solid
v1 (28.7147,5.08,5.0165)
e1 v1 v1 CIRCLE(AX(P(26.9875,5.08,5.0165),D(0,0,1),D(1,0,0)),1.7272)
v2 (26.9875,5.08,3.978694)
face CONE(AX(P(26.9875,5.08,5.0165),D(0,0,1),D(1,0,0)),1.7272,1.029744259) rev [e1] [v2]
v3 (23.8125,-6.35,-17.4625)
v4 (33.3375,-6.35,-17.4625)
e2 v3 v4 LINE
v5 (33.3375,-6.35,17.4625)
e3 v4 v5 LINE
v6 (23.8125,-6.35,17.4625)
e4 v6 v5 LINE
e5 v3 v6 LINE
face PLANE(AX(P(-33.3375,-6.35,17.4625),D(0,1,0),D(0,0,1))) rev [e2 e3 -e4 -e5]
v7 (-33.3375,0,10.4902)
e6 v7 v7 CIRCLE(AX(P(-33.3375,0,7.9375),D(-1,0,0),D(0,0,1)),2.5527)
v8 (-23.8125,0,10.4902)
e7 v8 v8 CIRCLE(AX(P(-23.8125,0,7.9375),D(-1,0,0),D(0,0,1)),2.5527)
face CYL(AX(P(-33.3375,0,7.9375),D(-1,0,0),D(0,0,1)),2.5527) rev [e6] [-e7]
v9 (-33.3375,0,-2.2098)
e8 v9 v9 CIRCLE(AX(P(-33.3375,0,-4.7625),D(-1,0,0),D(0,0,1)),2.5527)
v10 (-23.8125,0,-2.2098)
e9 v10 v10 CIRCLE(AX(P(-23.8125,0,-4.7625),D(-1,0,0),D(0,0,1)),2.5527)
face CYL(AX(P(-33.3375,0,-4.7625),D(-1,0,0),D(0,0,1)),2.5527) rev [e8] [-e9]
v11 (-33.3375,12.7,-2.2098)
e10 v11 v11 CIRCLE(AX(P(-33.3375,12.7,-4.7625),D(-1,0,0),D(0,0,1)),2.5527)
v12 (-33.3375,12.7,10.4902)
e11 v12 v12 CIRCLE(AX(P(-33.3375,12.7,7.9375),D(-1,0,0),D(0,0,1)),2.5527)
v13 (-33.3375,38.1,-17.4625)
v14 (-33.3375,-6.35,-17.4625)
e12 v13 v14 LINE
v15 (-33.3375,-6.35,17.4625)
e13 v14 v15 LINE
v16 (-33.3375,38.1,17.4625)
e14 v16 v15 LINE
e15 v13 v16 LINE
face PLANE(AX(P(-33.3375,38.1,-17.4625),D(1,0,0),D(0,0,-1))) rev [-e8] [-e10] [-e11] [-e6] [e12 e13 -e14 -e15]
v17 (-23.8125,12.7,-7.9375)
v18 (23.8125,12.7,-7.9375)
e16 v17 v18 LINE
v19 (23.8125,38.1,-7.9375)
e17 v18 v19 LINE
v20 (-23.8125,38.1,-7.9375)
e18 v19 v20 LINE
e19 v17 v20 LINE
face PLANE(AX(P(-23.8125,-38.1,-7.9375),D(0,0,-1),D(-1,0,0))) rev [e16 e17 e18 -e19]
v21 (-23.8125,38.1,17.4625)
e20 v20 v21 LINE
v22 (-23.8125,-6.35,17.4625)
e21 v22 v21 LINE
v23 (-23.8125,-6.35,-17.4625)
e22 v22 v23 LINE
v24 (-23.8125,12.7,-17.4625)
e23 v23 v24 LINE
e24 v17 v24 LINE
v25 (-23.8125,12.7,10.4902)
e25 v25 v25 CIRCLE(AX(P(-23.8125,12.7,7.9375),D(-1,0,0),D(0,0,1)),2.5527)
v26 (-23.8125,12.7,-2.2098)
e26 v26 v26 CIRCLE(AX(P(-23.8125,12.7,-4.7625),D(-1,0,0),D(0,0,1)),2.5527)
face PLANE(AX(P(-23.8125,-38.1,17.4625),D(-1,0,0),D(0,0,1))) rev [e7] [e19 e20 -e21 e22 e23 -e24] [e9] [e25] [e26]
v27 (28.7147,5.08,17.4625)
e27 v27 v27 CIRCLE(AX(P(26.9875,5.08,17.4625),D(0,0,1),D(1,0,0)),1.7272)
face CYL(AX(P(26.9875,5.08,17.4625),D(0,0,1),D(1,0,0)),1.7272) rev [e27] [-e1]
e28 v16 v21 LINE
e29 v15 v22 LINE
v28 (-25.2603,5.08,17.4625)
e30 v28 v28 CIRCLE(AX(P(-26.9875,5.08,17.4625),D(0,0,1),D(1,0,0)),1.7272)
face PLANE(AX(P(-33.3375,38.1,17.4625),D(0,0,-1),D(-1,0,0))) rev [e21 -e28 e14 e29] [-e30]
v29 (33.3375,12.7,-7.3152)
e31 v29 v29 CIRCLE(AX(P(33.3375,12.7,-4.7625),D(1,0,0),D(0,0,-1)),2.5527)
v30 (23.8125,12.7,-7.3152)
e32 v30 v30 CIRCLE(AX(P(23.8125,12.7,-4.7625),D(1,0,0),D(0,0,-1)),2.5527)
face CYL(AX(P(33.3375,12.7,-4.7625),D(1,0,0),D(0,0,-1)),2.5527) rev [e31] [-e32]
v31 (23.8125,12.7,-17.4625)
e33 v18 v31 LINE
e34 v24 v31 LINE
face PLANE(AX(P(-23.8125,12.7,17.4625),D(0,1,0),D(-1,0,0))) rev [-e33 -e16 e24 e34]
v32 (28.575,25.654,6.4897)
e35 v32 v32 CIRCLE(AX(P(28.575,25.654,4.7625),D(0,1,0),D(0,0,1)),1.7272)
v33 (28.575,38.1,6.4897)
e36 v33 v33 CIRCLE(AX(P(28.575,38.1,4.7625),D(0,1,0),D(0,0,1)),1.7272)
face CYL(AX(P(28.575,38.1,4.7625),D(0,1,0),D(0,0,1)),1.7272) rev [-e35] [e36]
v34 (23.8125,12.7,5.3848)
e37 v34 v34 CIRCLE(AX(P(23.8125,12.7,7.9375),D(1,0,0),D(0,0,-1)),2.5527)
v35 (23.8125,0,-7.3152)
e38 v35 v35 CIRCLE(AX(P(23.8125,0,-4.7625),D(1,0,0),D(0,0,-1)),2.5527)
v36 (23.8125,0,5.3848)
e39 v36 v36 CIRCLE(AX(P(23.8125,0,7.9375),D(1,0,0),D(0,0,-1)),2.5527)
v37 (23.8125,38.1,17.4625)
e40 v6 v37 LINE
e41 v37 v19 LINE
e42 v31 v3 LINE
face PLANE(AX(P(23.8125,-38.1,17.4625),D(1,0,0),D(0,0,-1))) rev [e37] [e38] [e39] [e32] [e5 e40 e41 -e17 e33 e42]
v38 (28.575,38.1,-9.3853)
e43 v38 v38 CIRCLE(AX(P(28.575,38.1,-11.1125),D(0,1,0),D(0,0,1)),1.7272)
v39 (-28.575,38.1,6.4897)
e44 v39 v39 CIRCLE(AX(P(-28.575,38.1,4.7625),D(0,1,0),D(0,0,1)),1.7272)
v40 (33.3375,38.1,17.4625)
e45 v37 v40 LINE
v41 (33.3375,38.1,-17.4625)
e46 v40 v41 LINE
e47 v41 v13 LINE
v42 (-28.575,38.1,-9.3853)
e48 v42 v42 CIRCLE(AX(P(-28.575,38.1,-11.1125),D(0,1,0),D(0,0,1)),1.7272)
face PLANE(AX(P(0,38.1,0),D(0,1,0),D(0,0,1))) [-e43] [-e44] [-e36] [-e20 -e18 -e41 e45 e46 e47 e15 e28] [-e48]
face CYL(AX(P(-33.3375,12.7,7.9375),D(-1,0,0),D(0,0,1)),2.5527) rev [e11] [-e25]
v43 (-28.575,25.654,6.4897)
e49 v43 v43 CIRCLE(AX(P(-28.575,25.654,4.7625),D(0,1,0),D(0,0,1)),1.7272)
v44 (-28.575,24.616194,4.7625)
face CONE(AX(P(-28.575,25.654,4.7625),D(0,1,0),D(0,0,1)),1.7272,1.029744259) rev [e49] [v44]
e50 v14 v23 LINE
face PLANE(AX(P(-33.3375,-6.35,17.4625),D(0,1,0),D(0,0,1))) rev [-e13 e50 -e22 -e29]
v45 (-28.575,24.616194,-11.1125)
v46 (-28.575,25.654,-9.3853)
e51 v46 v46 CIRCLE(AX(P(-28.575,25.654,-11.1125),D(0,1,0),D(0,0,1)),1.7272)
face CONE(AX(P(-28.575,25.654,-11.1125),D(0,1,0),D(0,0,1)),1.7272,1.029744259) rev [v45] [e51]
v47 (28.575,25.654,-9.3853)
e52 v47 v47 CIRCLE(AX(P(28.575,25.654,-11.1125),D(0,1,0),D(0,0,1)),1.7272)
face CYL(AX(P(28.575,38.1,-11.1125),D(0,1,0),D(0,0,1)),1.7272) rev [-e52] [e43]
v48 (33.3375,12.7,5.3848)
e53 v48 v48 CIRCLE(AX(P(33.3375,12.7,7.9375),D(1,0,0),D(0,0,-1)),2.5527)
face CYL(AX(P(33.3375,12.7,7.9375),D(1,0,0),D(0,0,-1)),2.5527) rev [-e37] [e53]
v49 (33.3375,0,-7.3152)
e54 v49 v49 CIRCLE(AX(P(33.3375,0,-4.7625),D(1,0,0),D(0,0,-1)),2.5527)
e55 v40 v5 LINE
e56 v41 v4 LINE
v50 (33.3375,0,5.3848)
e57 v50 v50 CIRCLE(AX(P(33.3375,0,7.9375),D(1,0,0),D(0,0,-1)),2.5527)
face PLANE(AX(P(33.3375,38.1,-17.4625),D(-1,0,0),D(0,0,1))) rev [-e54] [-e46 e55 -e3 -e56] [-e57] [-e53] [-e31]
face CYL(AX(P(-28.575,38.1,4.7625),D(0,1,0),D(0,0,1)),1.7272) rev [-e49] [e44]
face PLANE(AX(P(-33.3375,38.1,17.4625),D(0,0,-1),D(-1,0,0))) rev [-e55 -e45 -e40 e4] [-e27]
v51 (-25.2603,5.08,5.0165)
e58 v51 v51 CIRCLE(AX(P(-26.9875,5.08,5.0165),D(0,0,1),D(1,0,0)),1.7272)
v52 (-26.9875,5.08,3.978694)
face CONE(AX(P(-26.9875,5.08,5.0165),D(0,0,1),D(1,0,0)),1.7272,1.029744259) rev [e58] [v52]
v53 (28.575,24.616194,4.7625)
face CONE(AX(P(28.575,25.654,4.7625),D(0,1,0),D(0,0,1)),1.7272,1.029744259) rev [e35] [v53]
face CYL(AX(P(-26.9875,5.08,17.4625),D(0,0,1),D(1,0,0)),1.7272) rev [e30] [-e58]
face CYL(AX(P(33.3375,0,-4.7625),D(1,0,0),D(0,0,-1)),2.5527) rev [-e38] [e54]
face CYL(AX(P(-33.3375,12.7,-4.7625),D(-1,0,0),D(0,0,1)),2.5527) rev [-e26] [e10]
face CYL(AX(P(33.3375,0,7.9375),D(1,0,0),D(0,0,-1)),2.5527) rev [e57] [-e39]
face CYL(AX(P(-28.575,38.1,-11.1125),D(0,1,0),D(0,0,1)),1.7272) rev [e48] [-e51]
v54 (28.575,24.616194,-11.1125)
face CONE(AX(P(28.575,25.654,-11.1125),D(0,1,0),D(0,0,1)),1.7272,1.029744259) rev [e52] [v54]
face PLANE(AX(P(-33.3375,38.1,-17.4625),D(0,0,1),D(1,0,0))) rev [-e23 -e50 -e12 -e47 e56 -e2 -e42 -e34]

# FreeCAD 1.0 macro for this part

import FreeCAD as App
import Part
import Sketcher
Q = App.Units.Quantity

doc = App.newDocument("Part")
body = doc.addObject("PartDesign::Body", "Body")

sketch1 = doc.addObject("Sketcher::SketchObject", "Sketch")
body.addObject(sketch1)
sketch1.AttachmentSupport = (doc.XZ_Plane, [""])
sketch1.MapMode = "FlatFace"
sketch1.addGeometry([
    Part.LineSegment(App.Vector(-33, -17, 0), App.Vector(-33, 17, 0)),
    Part.LineSegment(App.Vector(-33, 17, 0), App.Vector(33, 17, 0)),
    Part.LineSegment(App.Vector(33, 17, 0), App.Vector(33, -17, 0)),
    Part.LineSegment(App.Vector(33, -17, 0), App.Vector(-33, -17, 0)),
], False)
sketch1.addConstraint([
    Sketcher.Constraint("Coincident", 0, 2, 1, 1),
    Sketcher.Constraint("Coincident", 1, 2, 2, 1),
    Sketcher.Constraint("Coincident", 2, 2, 3, 1),
    Sketcher.Constraint("Coincident", 3, 2, 0, 1),
    Sketcher.Constraint("Vertical", 0),
    Sketcher.Constraint("Horizontal", 1),
    Sketcher.Constraint("Vertical", 2),
    Sketcher.Constraint("Horizontal", 3),
    Sketcher.Constraint("Symmetric", 0, 2, 2, 2, -1, 1),
    Sketcher.Constraint("DistanceX", 1, 1, 1, 2, Q("2.625 in")),
    Sketcher.Constraint("DistanceY", 0, 1, 0, 2, Q("1.375 in")),
])
pad1 = doc.addObject("PartDesign::Pad", "Pad")
body.addObject(pad1)
pad1.Profile = sketch1
pad1.Length = Q("3 in")
pad1.Midplane = True

sketch2 = doc.addObject("Sketcher::SketchObject", "Sketch001")
body.addObject(sketch2)
sketch2.AttachmentSupport = (doc.XZ_Plane, [""])
sketch2.MapMode = "FlatFace"
sketch2.AttachmentOffset = App.Placement(App.Vector(0, 0, -1.5 * 25.4), App.Rotation())
sketch2.addGeometry([
    Part.LineSegment(App.Vector(-24, -8, 0), App.Vector(-24, 17, 0)),
    Part.LineSegment(App.Vector(-24, 17, 0), App.Vector(24, 17, 0)),
    Part.LineSegment(App.Vector(24, 17, 0), App.Vector(24, -8, 0)),
    Part.LineSegment(App.Vector(24, -8, 0), App.Vector(-24, -8, 0)),
], False)
sketch2.addConstraint([
    Sketcher.Constraint("Coincident", 0, 2, 1, 1),
    Sketcher.Constraint("Coincident", 1, 2, 2, 1),
    Sketcher.Constraint("Coincident", 2, 2, 3, 1),
    Sketcher.Constraint("Coincident", 3, 2, 0, 1),
    Sketcher.Constraint("Vertical", 0),
    Sketcher.Constraint("Horizontal", 1),
    Sketcher.Constraint("Vertical", 2),
    Sketcher.Constraint("Horizontal", 3),
    Sketcher.Constraint("DistanceY", 0, 1, 0, 2, Q("1 in")),
    Sketcher.Constraint("DistanceX", 1, 1, 1, 2, Q("1.875 in")),
    Sketcher.Constraint("DistanceX", 0, 2, -1, 1, Q("0.9375 in")),
    Sketcher.Constraint("DistanceY", -1, 1, 0, 2, Q("0.6875 in")),
])
pocket1 = doc.addObject("PartDesign::Pocket", "Pocket")
body.addObject(pocket1)
pocket1.Profile = sketch2
pocket1.Type = "ThroughAll"
pocket1.Reversed = True

sketch3 = doc.addObject("Sketcher::SketchObject", "Sketch002")
body.addObject(sketch3)
sketch3.AttachmentSupport = (doc.YZ_Plane, [""])
sketch3.MapMode = "FlatFace"
sketch3.AttachmentOffset = App.Placement(App.Vector(0, 0, 1.3125 * 25.4), App.Rotation())
sketch3.addGeometry([
    Part.LineSegment(App.Vector(-6, 17, 0), App.Vector(-38, 17, 0)),
    Part.LineSegment(App.Vector(-38, 17, 0), App.Vector(-38, -17, 0)),
    Part.LineSegment(App.Vector(-38, -17, 0), App.Vector(-6, -17, 0)),
    Part.LineSegment(App.Vector(-6, -17, 0), App.Vector(-6, 17, 0)),
], False)
sketch3.addConstraint([
    Sketcher.Constraint("Coincident", 0, 2, 1, 1),
    Sketcher.Constraint("Coincident", 1, 2, 2, 1),
    Sketcher.Constraint("Coincident", 2, 2, 3, 1),
    Sketcher.Constraint("Coincident", 3, 2, 0, 1),
    Sketcher.Constraint("Horizontal", 0),
    Sketcher.Constraint("Vertical", 1),
    Sketcher.Constraint("Horizontal", 2),
    Sketcher.Constraint("Vertical", 3),
    Sketcher.Constraint("DistanceX", 0, 2, 0, 1, Q("1.25 in")),
    Sketcher.Constraint("DistanceX", 0, 2, -1, 1, Q("1.5 in")),
    Sketcher.Constraint("DistanceY", 1, 2, 1, 1, Q("1.375 in")),
    Sketcher.Constraint("DistanceY", -1, 1, 0, 2, Q("0.6875 in")),
])
pocket2 = doc.addObject("PartDesign::Pocket", "Pocket001")
body.addObject(pocket2)
pocket2.Profile = sketch3
pocket2.Type = "ThroughAll"

sketch4 = doc.addObject("Sketcher::SketchObject", "Sketch003")
body.addObject(sketch4)
sketch4.AttachmentSupport = (doc.XY_Plane, [""])
sketch4.MapMode = "FlatFace"
sketch4.AttachmentOffset = App.Placement(App.Vector(0, 0, -0.6875 * 25.4), App.Rotation())
sketch4.addGeometry([
    Part.LineSegment(App.Vector(24, 13, 0), App.Vector(24, -25, 0)),
    Part.LineSegment(App.Vector(24, -25, 0), App.Vector(-24, -25, 0)),
    Part.LineSegment(App.Vector(-24, -25, 0), App.Vector(-24, 13, 0)),
    Part.LineSegment(App.Vector(-24, 13, 0), App.Vector(24, 13, 0)),
], False)
sketch4.addConstraint([
    Sketcher.Constraint("Coincident", 0, 2, 1, 1),
    Sketcher.Constraint("Coincident", 1, 2, 2, 1),
    Sketcher.Constraint("Coincident", 2, 2, 3, 1),
    Sketcher.Constraint("Coincident", 3, 2, 0, 1),
    Sketcher.Constraint("Vertical", 0),
    Sketcher.Constraint("Horizontal", 1),
    Sketcher.Constraint("Vertical", 2),
    Sketcher.Constraint("Horizontal", 3),
    Sketcher.Constraint("DistanceY", 0, 2, 0, 1, Q("1.5 in")),
    Sketcher.Constraint("DistanceY", 0, 2, -1, 1, Q("1 in")),
    Sketcher.Constraint("DistanceX", 1, 2, 1, 1, Q("1.875 in")),
    Sketcher.Constraint("DistanceX", -1, 1, 0, 2, Q("0.9375 in")),
])
pocket3 = doc.addObject("PartDesign::Pocket", "Pocket002")
body.addObject(pocket3)
pocket3.Profile = sketch4
pocket3.Type = "ThroughAll"
pocket3.Reversed = True

sketch5 = doc.addObject("Sketcher::SketchObject", "Sketch004")
body.addObject(sketch5)
sketch5.AttachmentSupport = (doc.YZ_Plane, [""])
sketch5.MapMode = "FlatFace"
sketch5.AttachmentOffset = App.Placement(App.Vector(0, 0, 1.3125 * 25.4), App.Rotation())
sketch5.addGeometry([
    Part.Circle(App.Vector(0, 7.9, 0), App.Vector(0, 0, 1), 2.6),
    Part.Circle(App.Vector(0, -4.8, 0), App.Vector(0, 0, 1), 2.6),
], False)
sketch5.addConstraint([
    Sketcher.Constraint("Equal", 0, 1),
    Sketcher.Constraint("PointOnObject", 0, 3, -2),
    Sketcher.Constraint("PointOnObject", 1, 3, -2),
    Sketcher.Constraint("Diameter", 0, Q("0.201 in")),
    Sketcher.Constraint("DistanceY", 1, 3, 0, 3, Q("0.5 in")),
    Sketcher.Constraint("DistanceY", -1, 1, 0, 3, Q("0.3125 in")),
])
doc.recompute()
hole = doc.addObject("PartDesign::Hole", "Hole")
body.addObject(hole)
hole.Profile = sketch5
hole.ThreadType = "None"
hole.Diameter = Q("0.201 in")
hole.DepthType = "Dimension"
hole.Depth = 9.526
hole.DrillPoint = "Flat"

sketch6 = doc.addObject("Sketcher::SketchObject", "Sketch005")
body.addObject(sketch6)
sketch6.AttachmentSupport = (doc.YZ_Plane, [""])
sketch6.MapMode = "FlatFace"
sketch6.AttachmentOffset = App.Placement(App.Vector(0, 0, 1.0625 * 25.4), App.Rotation())
sketch6.addGeometry([
    Part.LineSegment(App.Vector(5.1, 4, 0), App.Vector(5.1, 17.5, 0)),
    Part.LineSegment(App.Vector(5.1, 17.5, 0), App.Vector(3.4, 17.5, 0)),
    Part.LineSegment(App.Vector(3.4, 17.5, 0), App.Vector(3.4, 5, 0)),
    Part.LineSegment(App.Vector(3.4, 5, 0), App.Vector(5.1, 4, 0)),
], False)
sketch6.addGeometry(Part.LineSegment(App.Vector(5.1, 17.5, 0), App.Vector(5.1, 4, 0)), True)
sketch6.addConstraint([
    Sketcher.Constraint("Coincident", 0, 2, 1, 1),
    Sketcher.Constraint("Coincident", 1, 2, 2, 1),
    Sketcher.Constraint("Coincident", 2, 2, 3, 1),
    Sketcher.Constraint("Coincident", 3, 2, 0, 1),
    Sketcher.Constraint("Vertical", 0),
    Sketcher.Constraint("Horizontal", 1),
    Sketcher.Constraint("Vertical", 2),
    Sketcher.Constraint("Vertical", 4),
    Sketcher.Constraint("Coincident", 4, 1, 0, 2),
    Sketcher.Constraint("Equal", 0, 4),
    Sketcher.Constraint("Angle", 3, Q("-31 deg")),
    Sketcher.Constraint("DistanceY", 2, 2, 2, 1, Q("0.49 in")),
    Sketcher.Constraint("DistanceX", -1, 1, 0, 2, Q("0.2 in")),
    Sketcher.Constraint("DistanceX", 1, 2, 1, 1, Q("0.068 in")),
    Sketcher.Constraint("DistanceY", -1, 1, 0, 2, Q("0.6875 in")),
])
groove = doc.addObject("PartDesign::Groove", "Groove")
body.addObject(groove)
groove.Profile = sketch6
groove.ReferenceAxis = (sketch6, ["Axis0"])
groove.Angle = 360

sketch7 = doc.addObject("Sketcher::SketchObject", "Sketch006")
body.addObject(sketch7)
sketch7.AttachmentSupport = (doc.YZ_Plane, [""])
sketch7.MapMode = "FlatFace"
sketch7.AttachmentOffset = App.Placement(App.Vector(0, 0, 1.125 * 25.4), App.Rotation())
sketch7.addGeometry([
    Part.LineSegment(App.Vector(24.6, 4.8, 0), App.Vector(38.1, 4.8, 0)),
    Part.LineSegment(App.Vector(38.1, 4.8, 0), App.Vector(38.1, 6.5, 0)),
    Part.LineSegment(App.Vector(38.1, 6.5, 0), App.Vector(25.7, 6.5, 0)),
    Part.LineSegment(App.Vector(25.7, 6.5, 0), App.Vector(24.6, 4.8, 0)),
], False)
sketch7.addGeometry(Part.LineSegment(App.Vector(38.1, 4.8, 0), App.Vector(24.6, 4.8, 0)), True)
sketch7.addConstraint([
    Sketcher.Constraint("Coincident", 0, 2, 1, 1),
    Sketcher.Constraint("Coincident", 1, 2, 2, 1),
    Sketcher.Constraint("Coincident", 2, 2, 3, 1),
    Sketcher.Constraint("Coincident", 3, 2, 0, 1),
    Sketcher.Constraint("Horizontal", 0),
    Sketcher.Constraint("Vertical", 1),
    Sketcher.Constraint("Horizontal", 2),
    Sketcher.Constraint("Horizontal", 4),
    Sketcher.Constraint("Coincident", 4, 1, 0, 2),
    Sketcher.Constraint("Equal", 0, 4),
    Sketcher.Constraint("Angle", 3, Q("-121 deg")),
    Sketcher.Constraint("DistanceX", 2, 2, 2, 1, Q("0.49 in")),
    Sketcher.Constraint("DistanceX", -1, 1, 0, 2, Q("1.5 in")),
    Sketcher.Constraint("DistanceY", 1, 1, 1, 2, Q("0.068 in")),
    Sketcher.Constraint("DistanceY", -1, 1, 0, 2, Q("0.1875 in")),
])
groove2 = doc.addObject("PartDesign::Groove", "Groove001")
body.addObject(groove2)
groove2.Profile = sketch7
groove2.ReferenceAxis = (sketch7, ["Axis0"])
groove2.Angle = 360
doc.recompute()

linearpattern = doc.addObject("PartDesign::LinearPattern", "LinearPattern")
body.addObject(linearpattern)
linearpattern.Originals = [groove2]
linearpattern.Direction = (doc.Z_Axis, [""])
linearpattern.Mode = "offset"
linearpattern.Offset = Q("0.625 in")
linearpattern.Occurrences = 2
linearpattern.Reversed = True
body.Tip = linearpattern
doc.recompute()

linearpattern2 = doc.addObject("PartDesign::LinearPattern", "LinearPattern001")
body.addObject(linearpattern2)
linearpattern2.Originals = [hole]
linearpattern2.Direction = (doc.Y_Axis, [""])
linearpattern2.Mode = "offset"
linearpattern2.Offset = Q("0.5 in")
linearpattern2.Occurrences = 2
body.Tip = linearpattern2
doc.recompute()

mirrored = doc.addObject("PartDesign::Mirrored", "Mirrored")
body.addObject(mirrored)
mirrored.Originals = [hole, groove, groove2]
mirrored.MirrorPlane = (doc.YZ_Plane, [""])
body.Tip = mirrored

sketch8 = doc.addObject("Sketcher::SketchObject", "Sketch007")
body.addObject(sketch8)
sketch8.AttachmentSupport = (doc.YZ_Plane, [""])
sketch8.MapMode = "FlatFace"
sketch8.AttachmentOffset = App.Placement(App.Vector(0, 0, -1.125 * 25.4), App.Rotation())
sketch8.addGeometry([
    Part.LineSegment(App.Vector(38.1, -11.1, 0), App.Vector(24.6, -11.1, 0)),
    Part.LineSegment(App.Vector(24.6, -11.1, 0), App.Vector(25.7, -9.4, 0)),
    Part.LineSegment(App.Vector(25.7, -9.4, 0), App.Vector(38.1, -9.4, 0)),
    Part.LineSegment(App.Vector(38.1, -9.4, 0), App.Vector(38.1, -11.1, 0)),
], False)
sketch8.addGeometry(Part.LineSegment(App.Vector(24.6, -11.1, 0), App.Vector(38.1, -11.1, 0)), True)
sketch8.addConstraint([
    Sketcher.Constraint("Coincident", 0, 2, 1, 1),
    Sketcher.Constraint("Coincident", 1, 2, 2, 1),
    Sketcher.Constraint("Coincident", 2, 2, 3, 1),
    Sketcher.Constraint("Coincident", 3, 2, 0, 1),
    Sketcher.Constraint("Horizontal", 0),
    Sketcher.Constraint("Horizontal", 2),
    Sketcher.Constraint("Vertical", 3),
    Sketcher.Constraint("Horizontal", 4),
    Sketcher.Constraint("Coincident", 4, 1, 0, 2),
    Sketcher.Constraint("Vertical", 2, 2, 4, 2),
    Sketcher.Constraint("Angle", 1, Q("59 deg")),
    Sketcher.Constraint("DistanceX", 2, 1, 2, 2, Q("0.49 in")),
    Sketcher.Constraint("DistanceX", -1, 1, 2, 2, Q("1.5 in")),
    Sketcher.Constraint("DistanceY", 3, 2, 3, 1, Q("0.068 in")),
    Sketcher.Constraint("DistanceY", 0, 2, -1, 1, Q("0.4375 in")),
])
groove3 = doc.addObject("PartDesign::Groove", "Groove002")
body.addObject(groove3)
groove3.Profile = sketch8
groove3.ReferenceAxis = (sketch8, ["Axis0"])
groove3.Angle = 360

sketch9 = doc.addObject("Sketcher::SketchObject", "Sketch008")
body.addObject(sketch9)
sketch9.AttachmentSupport = (doc.YZ_Plane, [""])
sketch9.MapMode = "FlatFace"
sketch9.AttachmentOffset = App.Placement(App.Vector(0, 0, -1.3125 * 25.4), App.Rotation())
sketch9.addGeometry([
    Part.Circle(App.Vector(12.7, 7.9, 0), App.Vector(0, 0, 1), 2.6),
    Part.Circle(App.Vector(12.7, -4.8, 0), App.Vector(0, 0, 1), 2.6),
], False)
sketch9.addConstraint([
    Sketcher.Constraint("Equal", 0, 1),
    Sketcher.Constraint("Vertical", 0, 3, 1, 3),
    Sketcher.Constraint("Diameter", 0, Q("0.201 in")),
    Sketcher.Constraint("DistanceX", -1, 1, 0, 3, Q("0.5 in")),
    Sketcher.Constraint("DistanceY", 1, 3, 0, 3, Q("0.5 in")),
    Sketcher.Constraint("DistanceY", -1, 1, 0, 3, Q("0.3125 in")),
])
doc.recompute()
hole2 = doc.addObject("PartDesign::Hole", "Hole001")
body.addObject(hole2)
hole2.Profile = sketch9
hole2.ThreadType = "None"
hole2.Diameter = Q("0.201 in")
hole2.DepthType = "Dimension"
hole2.Depth = 9.526
hole2.DrillPoint = "Flat"
hole2.Reversed = True

doc.recompute()
